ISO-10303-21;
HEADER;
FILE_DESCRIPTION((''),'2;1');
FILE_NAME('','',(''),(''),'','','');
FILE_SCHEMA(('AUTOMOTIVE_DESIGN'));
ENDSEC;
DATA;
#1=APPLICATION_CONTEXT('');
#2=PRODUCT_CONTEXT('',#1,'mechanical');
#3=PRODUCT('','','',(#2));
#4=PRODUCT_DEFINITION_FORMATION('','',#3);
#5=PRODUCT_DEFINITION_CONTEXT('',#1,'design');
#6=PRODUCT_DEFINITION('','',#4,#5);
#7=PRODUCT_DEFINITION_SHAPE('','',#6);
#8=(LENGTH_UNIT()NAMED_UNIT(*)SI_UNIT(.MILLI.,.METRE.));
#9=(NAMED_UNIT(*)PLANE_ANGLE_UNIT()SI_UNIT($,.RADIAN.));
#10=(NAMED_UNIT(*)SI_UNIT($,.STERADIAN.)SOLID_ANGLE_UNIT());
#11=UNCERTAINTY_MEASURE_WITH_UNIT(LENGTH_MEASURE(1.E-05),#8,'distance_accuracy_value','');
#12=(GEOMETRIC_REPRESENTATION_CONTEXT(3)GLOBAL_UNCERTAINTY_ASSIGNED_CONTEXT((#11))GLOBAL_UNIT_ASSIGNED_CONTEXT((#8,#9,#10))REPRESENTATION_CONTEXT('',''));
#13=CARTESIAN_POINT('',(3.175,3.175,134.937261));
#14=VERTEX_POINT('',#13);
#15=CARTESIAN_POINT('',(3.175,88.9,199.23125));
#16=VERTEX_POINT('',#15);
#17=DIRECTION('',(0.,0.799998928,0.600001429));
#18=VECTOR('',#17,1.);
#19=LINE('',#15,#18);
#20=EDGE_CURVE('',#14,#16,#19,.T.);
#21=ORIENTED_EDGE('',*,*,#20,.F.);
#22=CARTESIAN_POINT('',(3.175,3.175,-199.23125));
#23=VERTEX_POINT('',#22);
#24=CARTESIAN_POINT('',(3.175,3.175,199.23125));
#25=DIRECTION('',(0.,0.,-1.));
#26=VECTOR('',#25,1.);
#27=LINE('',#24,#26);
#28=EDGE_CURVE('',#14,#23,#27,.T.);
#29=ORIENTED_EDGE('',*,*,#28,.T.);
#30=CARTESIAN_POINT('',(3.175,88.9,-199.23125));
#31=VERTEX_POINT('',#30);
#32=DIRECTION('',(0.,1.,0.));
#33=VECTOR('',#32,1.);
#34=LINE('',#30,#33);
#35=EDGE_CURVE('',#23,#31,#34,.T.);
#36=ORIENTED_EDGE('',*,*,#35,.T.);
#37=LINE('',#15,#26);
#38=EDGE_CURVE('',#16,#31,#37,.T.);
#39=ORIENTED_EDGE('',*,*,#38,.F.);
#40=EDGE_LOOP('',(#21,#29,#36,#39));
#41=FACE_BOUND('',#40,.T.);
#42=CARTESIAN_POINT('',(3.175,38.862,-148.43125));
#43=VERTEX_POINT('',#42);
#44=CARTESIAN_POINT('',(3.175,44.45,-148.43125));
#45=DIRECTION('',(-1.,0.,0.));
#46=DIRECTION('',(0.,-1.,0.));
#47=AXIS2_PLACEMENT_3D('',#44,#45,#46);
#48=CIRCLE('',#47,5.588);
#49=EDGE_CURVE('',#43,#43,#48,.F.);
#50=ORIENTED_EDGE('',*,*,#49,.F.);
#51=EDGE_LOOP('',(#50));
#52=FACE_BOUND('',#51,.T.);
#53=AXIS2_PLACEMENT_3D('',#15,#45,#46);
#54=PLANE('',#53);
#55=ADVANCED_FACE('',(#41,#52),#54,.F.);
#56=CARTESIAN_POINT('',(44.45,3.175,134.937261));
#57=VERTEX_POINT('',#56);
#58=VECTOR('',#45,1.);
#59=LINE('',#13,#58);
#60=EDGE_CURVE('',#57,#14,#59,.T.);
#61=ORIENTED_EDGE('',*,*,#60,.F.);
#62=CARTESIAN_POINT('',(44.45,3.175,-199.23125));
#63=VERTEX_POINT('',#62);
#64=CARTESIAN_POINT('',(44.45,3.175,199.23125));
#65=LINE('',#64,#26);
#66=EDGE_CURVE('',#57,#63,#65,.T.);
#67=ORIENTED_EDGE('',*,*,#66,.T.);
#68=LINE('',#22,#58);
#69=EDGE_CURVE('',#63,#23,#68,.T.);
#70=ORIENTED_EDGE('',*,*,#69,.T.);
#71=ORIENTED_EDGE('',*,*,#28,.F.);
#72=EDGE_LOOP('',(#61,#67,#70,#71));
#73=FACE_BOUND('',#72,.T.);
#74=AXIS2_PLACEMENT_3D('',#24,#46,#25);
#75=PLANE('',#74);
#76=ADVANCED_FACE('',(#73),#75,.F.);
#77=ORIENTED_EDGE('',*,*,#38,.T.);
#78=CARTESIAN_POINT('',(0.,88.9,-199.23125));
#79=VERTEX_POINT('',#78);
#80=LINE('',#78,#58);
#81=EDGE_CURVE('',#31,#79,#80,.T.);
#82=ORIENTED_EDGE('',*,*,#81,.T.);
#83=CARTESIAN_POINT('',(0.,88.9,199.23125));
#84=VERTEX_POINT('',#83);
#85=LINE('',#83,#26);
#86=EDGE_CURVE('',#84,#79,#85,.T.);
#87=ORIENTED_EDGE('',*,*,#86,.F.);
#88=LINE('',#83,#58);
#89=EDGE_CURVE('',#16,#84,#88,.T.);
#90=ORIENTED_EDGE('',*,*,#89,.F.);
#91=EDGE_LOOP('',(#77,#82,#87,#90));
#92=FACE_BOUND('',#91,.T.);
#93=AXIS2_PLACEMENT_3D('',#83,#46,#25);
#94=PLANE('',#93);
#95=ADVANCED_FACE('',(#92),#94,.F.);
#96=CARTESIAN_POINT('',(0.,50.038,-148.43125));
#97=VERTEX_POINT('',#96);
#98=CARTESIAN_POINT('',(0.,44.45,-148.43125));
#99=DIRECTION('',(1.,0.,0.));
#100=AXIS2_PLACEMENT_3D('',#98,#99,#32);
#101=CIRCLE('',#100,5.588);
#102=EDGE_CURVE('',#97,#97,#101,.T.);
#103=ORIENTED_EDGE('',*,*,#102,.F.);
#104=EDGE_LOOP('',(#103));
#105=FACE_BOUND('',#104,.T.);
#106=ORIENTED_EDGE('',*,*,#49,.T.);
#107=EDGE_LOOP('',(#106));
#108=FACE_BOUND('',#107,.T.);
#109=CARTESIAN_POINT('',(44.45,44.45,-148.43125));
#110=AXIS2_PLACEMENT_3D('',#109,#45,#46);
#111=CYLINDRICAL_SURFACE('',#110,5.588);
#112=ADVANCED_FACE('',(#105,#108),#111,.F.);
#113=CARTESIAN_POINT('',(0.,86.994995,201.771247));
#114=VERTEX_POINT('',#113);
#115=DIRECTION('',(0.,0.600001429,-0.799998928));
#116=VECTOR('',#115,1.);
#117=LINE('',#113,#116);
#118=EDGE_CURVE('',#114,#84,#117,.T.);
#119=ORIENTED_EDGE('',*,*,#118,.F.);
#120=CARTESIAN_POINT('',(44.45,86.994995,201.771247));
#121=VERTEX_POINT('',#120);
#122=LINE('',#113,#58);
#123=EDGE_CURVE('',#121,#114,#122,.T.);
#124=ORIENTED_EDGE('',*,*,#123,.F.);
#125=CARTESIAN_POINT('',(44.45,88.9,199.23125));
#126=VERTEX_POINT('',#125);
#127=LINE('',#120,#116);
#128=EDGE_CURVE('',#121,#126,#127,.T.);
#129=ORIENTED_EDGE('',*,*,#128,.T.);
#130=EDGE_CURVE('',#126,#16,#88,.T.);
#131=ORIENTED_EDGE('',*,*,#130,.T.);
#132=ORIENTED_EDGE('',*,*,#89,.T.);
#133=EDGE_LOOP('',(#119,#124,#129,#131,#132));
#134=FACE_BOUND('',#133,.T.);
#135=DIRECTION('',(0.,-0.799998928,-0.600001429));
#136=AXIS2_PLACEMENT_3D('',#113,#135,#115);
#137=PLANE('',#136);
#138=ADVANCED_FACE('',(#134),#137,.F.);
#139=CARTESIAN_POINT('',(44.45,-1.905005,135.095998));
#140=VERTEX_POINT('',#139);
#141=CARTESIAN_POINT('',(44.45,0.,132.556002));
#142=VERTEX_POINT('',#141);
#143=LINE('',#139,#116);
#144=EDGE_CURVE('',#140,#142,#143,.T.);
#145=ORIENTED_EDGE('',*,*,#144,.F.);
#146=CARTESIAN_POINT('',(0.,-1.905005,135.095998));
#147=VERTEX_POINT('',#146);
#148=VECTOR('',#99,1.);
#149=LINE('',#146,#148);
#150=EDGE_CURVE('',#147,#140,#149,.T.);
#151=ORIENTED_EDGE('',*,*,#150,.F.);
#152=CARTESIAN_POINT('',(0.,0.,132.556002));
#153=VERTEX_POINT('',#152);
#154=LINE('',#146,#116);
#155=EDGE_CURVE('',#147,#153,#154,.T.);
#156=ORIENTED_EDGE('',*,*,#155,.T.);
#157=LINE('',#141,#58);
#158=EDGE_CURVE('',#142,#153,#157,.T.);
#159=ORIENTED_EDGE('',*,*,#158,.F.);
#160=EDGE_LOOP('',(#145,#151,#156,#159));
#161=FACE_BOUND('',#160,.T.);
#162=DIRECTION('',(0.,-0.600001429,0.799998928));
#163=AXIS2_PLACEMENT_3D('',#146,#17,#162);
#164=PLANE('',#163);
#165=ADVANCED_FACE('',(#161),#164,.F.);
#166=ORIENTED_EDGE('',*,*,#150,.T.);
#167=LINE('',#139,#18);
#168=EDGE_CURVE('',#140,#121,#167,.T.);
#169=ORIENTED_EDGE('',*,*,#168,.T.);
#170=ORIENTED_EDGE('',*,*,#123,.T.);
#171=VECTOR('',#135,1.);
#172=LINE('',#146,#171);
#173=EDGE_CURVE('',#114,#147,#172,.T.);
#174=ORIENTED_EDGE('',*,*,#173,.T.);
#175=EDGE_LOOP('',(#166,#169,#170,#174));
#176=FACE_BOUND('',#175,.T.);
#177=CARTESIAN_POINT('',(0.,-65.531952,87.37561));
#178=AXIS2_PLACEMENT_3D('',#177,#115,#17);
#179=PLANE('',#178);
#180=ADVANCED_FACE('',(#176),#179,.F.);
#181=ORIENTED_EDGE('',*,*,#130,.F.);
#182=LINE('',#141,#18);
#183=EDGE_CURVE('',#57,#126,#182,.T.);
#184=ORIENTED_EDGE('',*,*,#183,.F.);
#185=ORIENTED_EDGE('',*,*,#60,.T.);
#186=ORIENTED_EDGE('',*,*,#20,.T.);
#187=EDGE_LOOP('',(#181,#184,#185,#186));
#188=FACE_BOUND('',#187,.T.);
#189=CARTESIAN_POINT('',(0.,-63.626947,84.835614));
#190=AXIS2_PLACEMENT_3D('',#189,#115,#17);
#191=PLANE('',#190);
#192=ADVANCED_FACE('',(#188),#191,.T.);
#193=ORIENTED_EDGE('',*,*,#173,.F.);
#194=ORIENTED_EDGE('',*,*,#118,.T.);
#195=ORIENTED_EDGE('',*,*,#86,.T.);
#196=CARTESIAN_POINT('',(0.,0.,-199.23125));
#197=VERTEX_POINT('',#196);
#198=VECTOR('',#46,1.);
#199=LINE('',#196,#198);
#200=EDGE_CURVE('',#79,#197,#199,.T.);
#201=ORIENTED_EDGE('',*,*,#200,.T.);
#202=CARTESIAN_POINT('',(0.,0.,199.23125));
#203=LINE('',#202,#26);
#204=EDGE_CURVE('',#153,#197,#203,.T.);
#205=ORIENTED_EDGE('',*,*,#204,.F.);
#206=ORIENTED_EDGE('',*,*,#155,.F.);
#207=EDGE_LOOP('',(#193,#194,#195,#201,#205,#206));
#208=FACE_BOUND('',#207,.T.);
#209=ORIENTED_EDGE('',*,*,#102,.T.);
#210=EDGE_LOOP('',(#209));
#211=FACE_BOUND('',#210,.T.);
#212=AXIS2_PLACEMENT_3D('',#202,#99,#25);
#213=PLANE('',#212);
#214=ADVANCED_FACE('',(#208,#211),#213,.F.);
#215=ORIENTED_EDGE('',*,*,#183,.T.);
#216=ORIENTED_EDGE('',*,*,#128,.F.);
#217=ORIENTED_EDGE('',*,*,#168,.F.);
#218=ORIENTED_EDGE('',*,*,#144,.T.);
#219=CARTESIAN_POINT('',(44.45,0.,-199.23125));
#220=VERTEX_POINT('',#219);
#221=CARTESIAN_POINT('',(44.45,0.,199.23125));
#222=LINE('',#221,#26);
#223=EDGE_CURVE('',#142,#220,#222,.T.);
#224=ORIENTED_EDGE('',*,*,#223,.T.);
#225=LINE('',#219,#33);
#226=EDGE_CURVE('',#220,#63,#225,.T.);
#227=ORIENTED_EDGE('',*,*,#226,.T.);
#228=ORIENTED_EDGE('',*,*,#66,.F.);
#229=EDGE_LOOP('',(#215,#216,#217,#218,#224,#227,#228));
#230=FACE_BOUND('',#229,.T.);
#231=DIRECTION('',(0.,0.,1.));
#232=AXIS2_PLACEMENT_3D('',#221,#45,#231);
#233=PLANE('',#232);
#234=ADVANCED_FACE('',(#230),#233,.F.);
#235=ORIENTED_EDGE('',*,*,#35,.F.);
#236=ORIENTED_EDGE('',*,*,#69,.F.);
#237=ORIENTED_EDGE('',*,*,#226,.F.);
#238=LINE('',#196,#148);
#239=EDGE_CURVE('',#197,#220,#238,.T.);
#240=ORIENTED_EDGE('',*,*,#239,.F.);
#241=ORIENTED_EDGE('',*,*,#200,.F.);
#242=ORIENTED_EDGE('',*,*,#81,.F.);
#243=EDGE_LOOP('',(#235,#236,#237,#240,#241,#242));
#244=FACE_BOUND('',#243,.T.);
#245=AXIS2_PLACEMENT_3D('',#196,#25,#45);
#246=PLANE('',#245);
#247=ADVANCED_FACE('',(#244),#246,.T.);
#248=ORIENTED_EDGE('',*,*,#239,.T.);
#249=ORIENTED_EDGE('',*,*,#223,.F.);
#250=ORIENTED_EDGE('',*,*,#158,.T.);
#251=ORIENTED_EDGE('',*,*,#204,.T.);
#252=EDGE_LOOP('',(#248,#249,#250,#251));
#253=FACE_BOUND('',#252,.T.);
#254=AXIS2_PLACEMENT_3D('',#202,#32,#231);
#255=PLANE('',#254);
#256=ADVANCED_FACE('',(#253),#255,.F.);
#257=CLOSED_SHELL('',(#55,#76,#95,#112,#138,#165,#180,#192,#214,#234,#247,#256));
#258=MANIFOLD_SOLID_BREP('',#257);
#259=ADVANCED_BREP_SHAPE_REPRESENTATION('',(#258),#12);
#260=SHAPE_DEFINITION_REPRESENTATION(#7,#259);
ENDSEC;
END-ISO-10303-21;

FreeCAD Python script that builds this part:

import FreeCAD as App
import Part
import Sketcher

V = App.Vector
Q = App.Units.Quantity

doc = App.newDocument("Part")
params = doc.addObject("Spreadsheet::Sheet", "Params")
for row, (alias, value) in enumerate([
    ("sketch1_height", "3.5 in"),
    ("sketch1_width", "1.75 in"),
    ("sketch1_width2", "0.125 in"),
    ("pad1_length", "15.6875 in"),
    ("sketch2_diameter", "0.44 in"),
    ("sketch2_width", "3.5 in"),
    ("sketch3_width", "1.75 in"),
    ("pad2_length", "0.125 in"),
], start=1):
    params.set(f"A{row}", alias)
    params.set(f"B{row}", "=" + value)
    params.setAlias(f"B{row}", alias)

body = doc.addObject("PartDesign::Body", "Body")

# Sketch on XY plane
sketch1 = body.newObject("Sketcher::SketchObject", "Sketch")
sketch1.AttachmentSupport = (doc.getObject("XY_Plane"), [""])
sketch1.MapMode = "FlatFace"
sketch1.addGeometry([
    Part.LineSegment(V(3.2, 3.2, 0), V(3.2, 88.9, 0)),  # 0
    Part.LineSegment(V(3.2, 88.9, 0), V(0, 88.9, 0)),  # 1
    Part.LineSegment(V(0, 88.9, 0), V(0, 0, 0)),  # 2
    Part.LineSegment(V(0, 0, 0), V(44.5, 0, 0)),  # 3
    Part.LineSegment(V(44.5, 0, 0), V(44.5, 3.2, 0)),  # 4
    Part.LineSegment(V(44.5, 3.2, 0), V(3.2, 3.2, 0)),  # 5
], False)
sketch1.addConstraint([
    Sketcher.Constraint("Coincident", 0, 2, 1, 1),
    Sketcher.Constraint("Coincident", 1, 2, 2, 1),
    Sketcher.Constraint("Coincident", 2, 2, 3, 1),
    Sketcher.Constraint("Coincident", 3, 2, 4, 1),
    Sketcher.Constraint("Coincident", 4, 2, 5, 1),
    Sketcher.Constraint("Coincident", 5, 2, 0, 1),
    Sketcher.Constraint("Vertical", 0),
    Sketcher.Constraint("Horizontal", 1),
    Sketcher.Constraint("Vertical", 2),
    Sketcher.Constraint("Horizontal", 3),
    Sketcher.Constraint("Vertical", 4),
    Sketcher.Constraint("Horizontal", 5),
    Sketcher.Constraint("Coincident", 2, 2, -1, 1),
    Sketcher.Constraint("Equal", 1, 4),
    Sketcher.Constraint("DistanceY", 2, 2, 2, 1, Q("3.5 in")),
    Sketcher.Constraint("DistanceX", 3, 1, 3, 2, Q("1.75 in")),
    Sketcher.Constraint("DistanceX", 1, 2, 1, 1, Q("0.125 in")),
])
sketch1.setExpression("Constraints[14]", "Params.sketch1_height")
sketch1.setExpression("Constraints[15]", "Params.sketch1_width")
sketch1.setExpression("Constraints[16]", "Params.sketch1_width2")
pad1 = body.newObject("PartDesign::Pad", "Pad")
pad1.Profile = sketch1
pad1.setExpression("Length", "Params.pad1_length")
pad1.Midplane = True

# Sketch on YZ plane
sketch2 = body.newObject("Sketcher::SketchObject", "Sketch001")
sketch2.AttachmentSupport = (doc.getObject("YZ_Plane"), [""])
sketch2.MapMode = "FlatFace"
sketch2.AttachmentOffset = App.Placement(V(0, 0, 0.125 * 25.4), App.Rotation())
sketch2.addGeometry([
    Part.Circle(V(44, -148, 0), V(0, 0, 1), 6),
    Part.LineSegment(V(0, 133, 0), V(89, 199, 0)),
    Part.LineSegment(V(89, 199, 0), V(0, 199, 0)),
    Part.LineSegment(V(0, 199, 0), V(0, 133, 0)),
], False)
sketch2.addConstraint([
    Sketcher.Constraint("Coincident", 1, 2, 2, 1),
    Sketcher.Constraint("Coincident", 2, 2, 3, 1),
    Sketcher.Constraint("Coincident", 3, 2, 1, 1),
    Sketcher.Constraint("Horizontal", 2),
    Sketcher.Constraint("Vertical", 3),
    Sketcher.Constraint("PointOnObject", 2, 2, -2),
    Sketcher.Constraint("Diameter", 0, Q("0.44 in")),
    Sketcher.Constraint("DistanceX", 2, 2, 2, 1, Q("3.5 in")),
    Sketcher.Constraint("DistanceX", -1, 1, 0, 3, Q("1.75 in")),
    Sketcher.Constraint("Angle", 1, Q("36.87 deg")),
    Sketcher.Constraint("DistanceY", 0, 3, -1, 1, Q("5.84375 in")),
    Sketcher.Constraint("DistanceY", -1, 1, 1, 2, Q("7.84375 in")),
])
sketch2.setExpression("Constraints[6]", "Params.sketch2_diameter")
sketch2.setExpression("Constraints[7]", "Params.sketch2_width")
pocket1 = body.newObject("PartDesign::Pocket", "Pocket")
pocket1.Profile = sketch2
pocket1.Type = "ThroughAll"
pocket1.Midplane = True

# Sketch on an angled plane
sketch3 = body.newObject("Sketcher::SketchObject", "Sketch002")
sketch3.Placement = App.Placement(V(0, -63.626947, 84.835614), App.Rotation(V(1, 0, 0), V(0, 0.799998928, 0.600001429), V(0, -0.600001429, 0.799998928), "ZXY"))
sketch3.addGeometry([
    Part.LineSegment(V(0, 191, 0), V(0, 80, 0)),
    Part.LineSegment(V(0, 80, 0), V(44, 80, 0)),
    Part.LineSegment(V(44, 80, 0), V(44, 191, 0)),
    Part.LineSegment(V(44, 191, 0), V(0, 191, 0)),
], False)
sketch3.addConstraint([
    Sketcher.Constraint("Coincident", 0, 2, 1, 1),
    Sketcher.Constraint("Coincident", 1, 2, 2, 1),
    Sketcher.Constraint("Coincident", 2, 2, 3, 1),
    Sketcher.Constraint("Coincident", 3, 2, 0, 1),
    Sketcher.Constraint("Vertical", 0),
    Sketcher.Constraint("Horizontal", 1),
    Sketcher.Constraint("Vertical", 2),
    Sketcher.Constraint("Horizontal", 3),
    Sketcher.Constraint("PointOnObject", 0, 2, -2),
    Sketcher.Constraint("DistanceX", 1, 1, 1, 2, Q("1.75 in")),
    Sketcher.Constraint("DistanceY", 0, 2, 0, 1, Q("111.125149 mm")),
    Sketcher.Constraint("DistanceY", -1, 1, 0, 2, Q("79.533791 mm")),
])
sketch3.setExpression("Constraints[9]", "Params.sketch3_width")
pad2 = body.newObject("PartDesign::Pad", "Pad001")
pad2.Profile = sketch3
pad2.setExpression("Length", "Params.pad2_length")

doc.recompute()
